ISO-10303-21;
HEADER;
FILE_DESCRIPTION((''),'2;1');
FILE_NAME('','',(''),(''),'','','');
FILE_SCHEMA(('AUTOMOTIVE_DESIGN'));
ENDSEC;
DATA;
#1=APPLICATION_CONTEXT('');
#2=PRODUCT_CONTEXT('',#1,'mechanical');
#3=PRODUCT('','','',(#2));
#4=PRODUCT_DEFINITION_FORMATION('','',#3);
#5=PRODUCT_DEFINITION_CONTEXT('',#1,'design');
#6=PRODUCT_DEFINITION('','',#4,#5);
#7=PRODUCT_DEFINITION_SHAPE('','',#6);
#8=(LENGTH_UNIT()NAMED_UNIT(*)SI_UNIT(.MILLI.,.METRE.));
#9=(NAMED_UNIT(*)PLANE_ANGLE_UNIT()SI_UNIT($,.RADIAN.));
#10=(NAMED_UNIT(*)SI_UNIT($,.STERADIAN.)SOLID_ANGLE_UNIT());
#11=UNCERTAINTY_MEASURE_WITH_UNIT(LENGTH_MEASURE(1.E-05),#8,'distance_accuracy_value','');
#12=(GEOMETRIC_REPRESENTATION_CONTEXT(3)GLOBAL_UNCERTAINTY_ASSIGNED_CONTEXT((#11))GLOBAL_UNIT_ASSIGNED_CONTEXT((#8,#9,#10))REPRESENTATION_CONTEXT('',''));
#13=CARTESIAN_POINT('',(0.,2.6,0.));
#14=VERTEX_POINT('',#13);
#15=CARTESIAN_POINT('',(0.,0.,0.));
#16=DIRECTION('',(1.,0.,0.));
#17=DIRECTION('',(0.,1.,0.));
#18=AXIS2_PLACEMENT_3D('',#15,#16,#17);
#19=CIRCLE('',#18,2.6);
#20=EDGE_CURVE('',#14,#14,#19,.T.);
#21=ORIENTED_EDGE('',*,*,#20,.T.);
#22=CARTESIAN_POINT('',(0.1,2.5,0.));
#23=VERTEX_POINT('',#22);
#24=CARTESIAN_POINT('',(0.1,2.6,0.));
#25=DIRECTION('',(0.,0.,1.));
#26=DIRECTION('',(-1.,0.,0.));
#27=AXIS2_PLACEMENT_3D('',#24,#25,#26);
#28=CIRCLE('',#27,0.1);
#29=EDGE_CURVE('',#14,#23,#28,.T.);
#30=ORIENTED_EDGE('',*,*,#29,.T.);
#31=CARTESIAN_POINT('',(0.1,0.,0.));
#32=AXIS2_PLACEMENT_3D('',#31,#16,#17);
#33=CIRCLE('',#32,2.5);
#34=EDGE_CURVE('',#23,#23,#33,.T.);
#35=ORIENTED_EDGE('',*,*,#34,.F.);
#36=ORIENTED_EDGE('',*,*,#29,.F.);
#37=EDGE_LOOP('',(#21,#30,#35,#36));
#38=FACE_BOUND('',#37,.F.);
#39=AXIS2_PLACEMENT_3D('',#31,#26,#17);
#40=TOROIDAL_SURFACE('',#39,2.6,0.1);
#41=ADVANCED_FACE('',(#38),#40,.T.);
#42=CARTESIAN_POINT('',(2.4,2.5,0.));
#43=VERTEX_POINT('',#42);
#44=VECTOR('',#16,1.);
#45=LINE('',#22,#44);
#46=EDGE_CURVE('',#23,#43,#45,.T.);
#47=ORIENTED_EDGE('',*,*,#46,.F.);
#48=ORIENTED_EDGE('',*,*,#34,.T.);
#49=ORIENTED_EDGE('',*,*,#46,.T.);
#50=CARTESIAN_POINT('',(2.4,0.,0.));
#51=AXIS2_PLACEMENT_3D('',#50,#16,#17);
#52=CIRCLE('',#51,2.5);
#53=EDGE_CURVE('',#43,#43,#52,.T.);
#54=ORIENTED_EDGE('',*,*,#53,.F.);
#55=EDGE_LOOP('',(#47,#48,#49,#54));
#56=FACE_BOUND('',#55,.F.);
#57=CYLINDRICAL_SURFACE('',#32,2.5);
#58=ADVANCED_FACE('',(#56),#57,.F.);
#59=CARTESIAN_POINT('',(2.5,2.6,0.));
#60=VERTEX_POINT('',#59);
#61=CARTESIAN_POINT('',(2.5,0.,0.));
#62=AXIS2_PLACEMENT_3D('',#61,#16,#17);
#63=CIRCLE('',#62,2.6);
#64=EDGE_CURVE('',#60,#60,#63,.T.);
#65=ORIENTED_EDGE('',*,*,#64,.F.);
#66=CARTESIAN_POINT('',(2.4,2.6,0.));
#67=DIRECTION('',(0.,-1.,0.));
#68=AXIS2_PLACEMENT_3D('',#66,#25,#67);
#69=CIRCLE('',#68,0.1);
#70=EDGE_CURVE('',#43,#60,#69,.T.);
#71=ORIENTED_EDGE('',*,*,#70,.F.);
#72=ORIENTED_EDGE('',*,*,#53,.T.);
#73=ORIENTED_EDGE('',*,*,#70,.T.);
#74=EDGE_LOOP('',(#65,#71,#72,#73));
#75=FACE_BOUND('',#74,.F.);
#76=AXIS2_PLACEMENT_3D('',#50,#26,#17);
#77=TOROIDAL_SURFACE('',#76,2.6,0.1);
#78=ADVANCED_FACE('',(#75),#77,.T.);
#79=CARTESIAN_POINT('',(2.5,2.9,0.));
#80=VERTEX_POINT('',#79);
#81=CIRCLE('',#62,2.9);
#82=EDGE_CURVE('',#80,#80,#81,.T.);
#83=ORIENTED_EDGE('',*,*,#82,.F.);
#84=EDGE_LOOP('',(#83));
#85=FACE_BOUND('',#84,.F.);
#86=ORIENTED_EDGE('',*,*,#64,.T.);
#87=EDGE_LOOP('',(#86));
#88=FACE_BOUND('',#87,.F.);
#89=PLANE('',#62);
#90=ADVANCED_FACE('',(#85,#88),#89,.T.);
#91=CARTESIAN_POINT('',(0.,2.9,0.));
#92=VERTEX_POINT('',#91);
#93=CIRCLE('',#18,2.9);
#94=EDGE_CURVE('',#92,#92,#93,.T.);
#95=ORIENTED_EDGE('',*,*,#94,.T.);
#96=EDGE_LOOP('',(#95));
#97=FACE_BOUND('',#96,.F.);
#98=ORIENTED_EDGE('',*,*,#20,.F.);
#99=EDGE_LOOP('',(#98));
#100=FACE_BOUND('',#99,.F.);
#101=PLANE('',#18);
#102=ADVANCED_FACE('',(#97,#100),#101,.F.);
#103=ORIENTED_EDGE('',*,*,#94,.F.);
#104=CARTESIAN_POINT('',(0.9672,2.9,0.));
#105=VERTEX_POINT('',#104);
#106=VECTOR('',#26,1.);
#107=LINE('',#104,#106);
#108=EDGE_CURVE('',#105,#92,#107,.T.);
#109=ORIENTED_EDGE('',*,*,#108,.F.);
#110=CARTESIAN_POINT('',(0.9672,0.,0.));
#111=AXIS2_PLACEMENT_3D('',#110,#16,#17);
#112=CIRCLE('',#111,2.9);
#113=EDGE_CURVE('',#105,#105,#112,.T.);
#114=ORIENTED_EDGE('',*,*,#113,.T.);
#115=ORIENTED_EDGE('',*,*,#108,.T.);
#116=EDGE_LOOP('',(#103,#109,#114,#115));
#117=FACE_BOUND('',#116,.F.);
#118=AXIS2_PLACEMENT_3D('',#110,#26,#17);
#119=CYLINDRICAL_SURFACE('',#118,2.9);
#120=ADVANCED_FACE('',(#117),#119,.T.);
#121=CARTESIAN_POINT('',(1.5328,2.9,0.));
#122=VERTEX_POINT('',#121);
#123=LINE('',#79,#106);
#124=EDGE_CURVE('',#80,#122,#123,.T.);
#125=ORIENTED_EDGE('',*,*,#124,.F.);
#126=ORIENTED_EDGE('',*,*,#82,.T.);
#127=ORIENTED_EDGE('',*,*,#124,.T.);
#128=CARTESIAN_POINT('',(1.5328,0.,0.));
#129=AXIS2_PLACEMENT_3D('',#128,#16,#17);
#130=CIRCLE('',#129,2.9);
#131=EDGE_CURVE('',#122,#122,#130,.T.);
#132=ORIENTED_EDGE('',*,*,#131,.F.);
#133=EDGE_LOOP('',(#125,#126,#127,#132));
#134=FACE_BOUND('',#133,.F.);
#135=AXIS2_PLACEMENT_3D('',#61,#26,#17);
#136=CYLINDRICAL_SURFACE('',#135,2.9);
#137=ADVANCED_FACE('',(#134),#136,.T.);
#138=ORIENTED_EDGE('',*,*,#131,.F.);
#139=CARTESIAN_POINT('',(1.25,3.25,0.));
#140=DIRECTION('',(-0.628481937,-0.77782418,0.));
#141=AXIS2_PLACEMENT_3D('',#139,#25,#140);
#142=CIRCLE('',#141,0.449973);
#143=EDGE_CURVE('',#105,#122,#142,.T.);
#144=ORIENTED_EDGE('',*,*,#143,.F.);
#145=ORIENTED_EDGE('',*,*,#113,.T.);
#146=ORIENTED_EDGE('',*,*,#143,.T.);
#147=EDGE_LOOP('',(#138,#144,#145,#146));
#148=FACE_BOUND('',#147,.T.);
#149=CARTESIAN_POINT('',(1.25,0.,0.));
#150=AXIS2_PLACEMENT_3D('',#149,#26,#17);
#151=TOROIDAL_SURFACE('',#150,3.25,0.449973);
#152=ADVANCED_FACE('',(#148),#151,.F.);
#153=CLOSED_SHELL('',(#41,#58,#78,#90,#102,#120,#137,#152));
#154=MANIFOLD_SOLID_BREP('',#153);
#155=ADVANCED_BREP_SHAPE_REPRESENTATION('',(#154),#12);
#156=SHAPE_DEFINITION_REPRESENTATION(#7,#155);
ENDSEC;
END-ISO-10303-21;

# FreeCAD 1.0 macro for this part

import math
import FreeCAD as App
import Part
import Sketcher
from FreeCAD import Vector

doc = App.newDocument("Part")
body = doc.addObject("PartDesign::Body", "Body")

sketch1 = doc.addObject("Sketcher::SketchObject", "Sketch")
body.addObject(sketch1)
sketch1.AttachmentSupport = (doc.XY_Plane, [""])
sketch1.MapMode = "FlatFace"
sketch1.addGeometry([
    Part.LineSegment(Vector(0, 2.9, 0), Vector(0, 2.6, 0)),
    Part.ArcOfCircle(Part.Circle(Vector(0.1, 2.6, 0), Vector(0, 0, 1), 0.1), math.radians(180), math.radians(270)),
    Part.LineSegment(Vector(0.1, 2.5, 0), Vector(2.4, 2.5, 0)),
    Part.ArcOfCircle(Part.Circle(Vector(2.4, 2.6, 0), Vector(0, 0, 1), 0.1), math.radians(-90), math.radians(0)),
    Part.LineSegment(Vector(2.5, 2.6, 0), Vector(2.5, 2.9, 0)),
    Part.LineSegment(Vector(2.5, 2.9, 0), Vector(1.53, 2.9, 0)),
    Part.ArcOfCircle(Part.Circle(Vector(1.25, 3.25, 0), Vector(0, 0, 1), 0.45), math.radians(-129), math.radians(-51)),
    Part.LineSegment(Vector(0.97, 2.9, 0), Vector(0, 2.9, 0)),
], False)
sketch1.addConstraint([
    Sketcher.Constraint("Tangent", 0, 2, 1, 1),
    Sketcher.Constraint("Tangent", 1, 2, 2, 1),
    Sketcher.Constraint("Tangent", 2, 2, 3, 1),
    Sketcher.Constraint("Tangent", 3, 2, 4, 1),
    Sketcher.Constraint("Coincident", 4, 2, 5, 1),
    Sketcher.Constraint("Coincident", 5, 2, 6, 2),
    Sketcher.Constraint("Coincident", 6, 1, 7, 1),
    Sketcher.Constraint("Coincident", 7, 2, 0, 1),
    Sketcher.Constraint("Vertical", 0),
    Sketcher.Constraint("Horizontal", 2),
    Sketcher.Constraint("Vertical", 4),
    Sketcher.Constraint("Horizontal", 5),
    Sketcher.Constraint("Horizontal", 7),
    Sketcher.Constraint("Equal", 1, 3),
    Sketcher.Constraint("PointOnObject", 0, 2, -2),
    Sketcher.Constraint("Horizontal", 5, 2, 6, 1),
    Sketcher.Constraint("Equal", 5, 7),
    Sketcher.Constraint("Radius", 1, 0.1),
    Sketcher.Constraint("Radius", 6, 0.45),
    Sketcher.Constraint("DistanceX", 2, 1, 2, 2, 2.3),
    Sketcher.Constraint("DistanceY", 0, 2, 0, 1, 0.3),
    Sketcher.Constraint("DistanceY", -1, 1, 1, 3, 2.6),
    Sketcher.Constraint("DistanceY", -1, 1, 6, 3, 3.25),
])
revolution = doc.addObject("PartDesign::Revolution", "Revolution")
body.addObject(revolution)
revolution.Profile = sketch1
revolution.ReferenceAxis = (sketch1, ["H_Axis"])
revolution.Angle = 360

doc.recompute()
